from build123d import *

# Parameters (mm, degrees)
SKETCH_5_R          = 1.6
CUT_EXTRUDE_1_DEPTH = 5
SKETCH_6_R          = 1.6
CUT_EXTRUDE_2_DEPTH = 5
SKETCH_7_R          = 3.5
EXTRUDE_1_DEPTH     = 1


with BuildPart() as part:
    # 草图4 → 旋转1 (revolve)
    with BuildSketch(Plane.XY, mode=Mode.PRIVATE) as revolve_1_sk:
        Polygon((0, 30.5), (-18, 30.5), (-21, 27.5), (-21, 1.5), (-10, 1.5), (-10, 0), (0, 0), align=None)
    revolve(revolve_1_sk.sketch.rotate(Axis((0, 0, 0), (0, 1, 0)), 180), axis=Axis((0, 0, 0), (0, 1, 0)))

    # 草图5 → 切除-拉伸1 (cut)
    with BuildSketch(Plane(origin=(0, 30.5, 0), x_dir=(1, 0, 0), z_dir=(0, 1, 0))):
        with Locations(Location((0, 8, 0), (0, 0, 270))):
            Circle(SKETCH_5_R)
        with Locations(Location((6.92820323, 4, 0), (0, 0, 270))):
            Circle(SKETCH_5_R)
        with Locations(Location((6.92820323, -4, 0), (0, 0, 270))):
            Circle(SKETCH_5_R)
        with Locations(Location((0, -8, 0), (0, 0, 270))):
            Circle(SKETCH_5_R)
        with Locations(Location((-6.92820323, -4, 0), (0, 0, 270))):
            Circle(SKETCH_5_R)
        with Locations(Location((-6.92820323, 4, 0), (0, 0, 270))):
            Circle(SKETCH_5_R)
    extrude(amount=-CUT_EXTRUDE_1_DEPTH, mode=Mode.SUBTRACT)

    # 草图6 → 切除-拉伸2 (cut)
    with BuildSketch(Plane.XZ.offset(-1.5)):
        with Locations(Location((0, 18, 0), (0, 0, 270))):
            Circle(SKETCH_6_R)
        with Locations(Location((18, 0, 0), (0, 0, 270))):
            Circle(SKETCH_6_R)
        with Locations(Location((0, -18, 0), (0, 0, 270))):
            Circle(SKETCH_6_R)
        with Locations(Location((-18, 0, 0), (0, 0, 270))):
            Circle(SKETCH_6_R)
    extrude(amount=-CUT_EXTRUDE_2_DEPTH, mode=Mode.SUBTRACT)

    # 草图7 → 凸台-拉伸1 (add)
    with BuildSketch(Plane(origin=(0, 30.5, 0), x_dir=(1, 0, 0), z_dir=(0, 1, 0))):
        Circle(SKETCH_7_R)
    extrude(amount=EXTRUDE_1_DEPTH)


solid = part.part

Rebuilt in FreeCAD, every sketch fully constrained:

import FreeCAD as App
import Part
import Sketcher

V = App.Vector
Q = App.Units.Quantity

doc = App.newDocument("Part")
body = doc.addObject("PartDesign::Body", "Body")

# Sketch on XY plane
sketch1 = doc.addObject("Sketcher::SketchObject", "Sketch")
body.addObject(sketch1)
sketch1.AttachmentSupport = (doc.XY_Plane, [""])
sketch1.MapMode = "FlatFace"
sketch1.addGeometry([
    Part.LineSegment(V(0, 30.5, 0), V(-18, 30.5, 0)),  # 0
    Part.LineSegment(V(-18, 30.5, 0), V(-21, 27.5, 0)),  # 1
    Part.LineSegment(V(-21, 27.5, 0), V(-21, 1.5, 0)),  # 2
    Part.LineSegment(V(-21, 1.5, 0), V(-10, 1.5, 0)),  # 3
    Part.LineSegment(V(-10, 1.5, 0), V(-10, 0, 0)),  # 4
    Part.LineSegment(V(-10, 0, 0), V(0, 0, 0)),  # 5
    Part.LineSegment(V(0, 0, 0), V(0, 30.5, 0)),  # 6
], False)
sketch1.addConstraint([
    Sketcher.Constraint("Coincident", 0, 2, 1, 1),
    Sketcher.Constraint("Coincident", 1, 2, 2, 1),
    Sketcher.Constraint("Coincident", 2, 2, 3, 1),
    Sketcher.Constraint("Coincident", 3, 2, 4, 1),
    Sketcher.Constraint("Coincident", 4, 2, 5, 1),
    Sketcher.Constraint("Coincident", 5, 2, 6, 1),
    Sketcher.Constraint("Coincident", 6, 2, 0, 1),
    Sketcher.Constraint("Horizontal", 0),
    Sketcher.Constraint("Vertical", 2),
    Sketcher.Constraint("Horizontal", 3),
    Sketcher.Constraint("Vertical", 4),
    Sketcher.Constraint("Horizontal", 5),
    Sketcher.Constraint("Vertical", 6),
    Sketcher.Constraint("Coincident", 5, 2, -1, 1),
    Sketcher.Constraint("DistanceX", 0, 2, 0, 1, 18.0),
    Sketcher.Constraint("DistanceX", 3, 1, 3, 2, 11.0),
    Sketcher.Constraint("DistanceX", 5, 1, 5, 2, 10.0),
    Sketcher.Constraint("DistanceY", 2, 2, 2, 1, 26.0),
    Sketcher.Constraint("Angle", 1, Q("-135 deg")),
    Sketcher.Constraint("DistanceY", 4, 2, 4, 1, 1.5),
])
revolution = doc.addObject("PartDesign::Revolution", "Revolution")
body.addObject(revolution)
revolution.Profile = sketch1
revolution.ReferenceAxis = (sketch1, ["V_Axis"])
revolution.Angle = 360

# Sketch on XZ plane
sketch2 = doc.addObject("Sketcher::SketchObject", "Sketch001")
body.addObject(sketch2)
sketch2.AttachmentSupport = (doc.XZ_Plane, [""])
sketch2.MapMode = "FlatFace"
sketch2.AttachmentOffset = App.Placement(V(0, 0, -30.5), App.Rotation())
sketch2.addGeometry([
    Part.Circle(V(0, -8, 0), V(0, 0, 1), 1.6),  # 0
    Part.Circle(V(6.928203, -4, 0), V(0, 0, 1), 1.6),  # 1
    Part.Circle(V(6.928203, 4, 0), V(0, 0, 1), 1.6),  # 2
    Part.Circle(V(0, 8, 0), V(0, 0, 1), 1.6),  # 3
    Part.Circle(V(-6.928203, 4, 0), V(0, 0, 1), 1.6),  # 4
    Part.Circle(V(-6.928203, -4, 0), V(0, 0, 1), 1.6),  # 5
], False)
sketch2.addConstraint([
    Sketcher.Constraint("Equal", 0, 1),
    Sketcher.Constraint("Equal", 1, 2),
    Sketcher.Constraint("Equal", 2, 3),
    Sketcher.Constraint("Equal", 3, 4),
    Sketcher.Constraint("Equal", 4, 5),
    Sketcher.Constraint("Symmetric", 0, 3, 3, 3, -1, 1),
    Sketcher.Constraint("Symmetric", 1, 3, 4, 3, -1, 1),
    Sketcher.Constraint("Symmetric", 2, 3, 5, 3, -1, 1),
    Sketcher.Constraint("Symmetric", 2, 3, 4, 3, -2),
    Sketcher.Constraint("PointOnObject", 0, 3, -2),
    Sketcher.Constraint("Diameter", 0, 3.2),
    Sketcher.Constraint("DistanceY", 0, 3, -1, 1, 8.0),
    Sketcher.Constraint("DistanceY", 1, 3, -1, 1, 4.0),
    Sketcher.Constraint("DistanceX", -1, 1, 1, 3, 6.928203),
])
pocket1 = doc.addObject("PartDesign::Pocket", "Pocket")
body.addObject(pocket1)
pocket1.Profile = sketch2
pocket1.Length = 5
pocket1.Reversed = True

# Sketch on XZ plane
sketch3 = doc.addObject("Sketcher::SketchObject", "Sketch002")
body.addObject(sketch3)
sketch3.AttachmentSupport = (doc.XZ_Plane, [""])
sketch3.MapMode = "FlatFace"
sketch3.AttachmentOffset = App.Placement(V(0, 0, -1.5), App.Rotation())
sketch3.addGeometry([
    Part.Circle(V(0, 18, 0), V(0, 0, 1), 1.6),
    Part.Circle(V(18, 0, 0), V(0, 0, 1), 1.6),
    Part.Circle(V(0, -18, 0), V(0, 0, 1), 1.6),
    Part.Circle(V(-18, 0, 0), V(0, 0, 1), 1.6),
], False)
sketch3.addConstraint([
    Sketcher.Constraint("Equal", 0, 1),
    Sketcher.Constraint("Equal", 1, 2),
    Sketcher.Constraint("Equal", 2, 3),
    Sketcher.Constraint("Symmetric", 0, 3, 2, 3, -1, 1),
    Sketcher.Constraint("Symmetric", 1, 3, 3, 3, -1, 1),
    Sketcher.Constraint("PointOnObject", 0, 3, -2),
    Sketcher.Constraint("PointOnObject", 1, 3, -1),
    Sketcher.Constraint("Diameter", 0, 3.2),
    Sketcher.Constraint("DistanceY", -1, 1, 0, 3, 18.0),
    Sketcher.Constraint("DistanceX", -1, 1, 1, 3, 18.0),
])
pocket2 = doc.addObject("PartDesign::Pocket", "Pocket001")
body.addObject(pocket2)
pocket2.Profile = sketch3
pocket2.Length = 5

# Sketch on XZ plane
sketch4 = doc.addObject("Sketcher::SketchObject", "Sketch003")
body.addObject(sketch4)
sketch4.AttachmentSupport = (doc.XZ_Plane, [""])
sketch4.MapMode = "FlatFace"
sketch4.AttachmentOffset = App.Placement(V(0, 0, -30.5), App.Rotation())
sketch4.addGeometry(Part.Circle(V(0, 0, 0), V(0, 0, 1), 3.5), False)
sketch4.addConstraint([
    Sketcher.Constraint("Coincident", 0, 3, -1, 1),
    Sketcher.Constraint("Diameter", 0, 7.0),
])
pad1 = doc.addObject("PartDesign::Pad", "Pad")
body.addObject(pad1)
pad1.Profile = sketch4
pad1.Length = 1
pad1.Reversed = True

doc.recompute()
